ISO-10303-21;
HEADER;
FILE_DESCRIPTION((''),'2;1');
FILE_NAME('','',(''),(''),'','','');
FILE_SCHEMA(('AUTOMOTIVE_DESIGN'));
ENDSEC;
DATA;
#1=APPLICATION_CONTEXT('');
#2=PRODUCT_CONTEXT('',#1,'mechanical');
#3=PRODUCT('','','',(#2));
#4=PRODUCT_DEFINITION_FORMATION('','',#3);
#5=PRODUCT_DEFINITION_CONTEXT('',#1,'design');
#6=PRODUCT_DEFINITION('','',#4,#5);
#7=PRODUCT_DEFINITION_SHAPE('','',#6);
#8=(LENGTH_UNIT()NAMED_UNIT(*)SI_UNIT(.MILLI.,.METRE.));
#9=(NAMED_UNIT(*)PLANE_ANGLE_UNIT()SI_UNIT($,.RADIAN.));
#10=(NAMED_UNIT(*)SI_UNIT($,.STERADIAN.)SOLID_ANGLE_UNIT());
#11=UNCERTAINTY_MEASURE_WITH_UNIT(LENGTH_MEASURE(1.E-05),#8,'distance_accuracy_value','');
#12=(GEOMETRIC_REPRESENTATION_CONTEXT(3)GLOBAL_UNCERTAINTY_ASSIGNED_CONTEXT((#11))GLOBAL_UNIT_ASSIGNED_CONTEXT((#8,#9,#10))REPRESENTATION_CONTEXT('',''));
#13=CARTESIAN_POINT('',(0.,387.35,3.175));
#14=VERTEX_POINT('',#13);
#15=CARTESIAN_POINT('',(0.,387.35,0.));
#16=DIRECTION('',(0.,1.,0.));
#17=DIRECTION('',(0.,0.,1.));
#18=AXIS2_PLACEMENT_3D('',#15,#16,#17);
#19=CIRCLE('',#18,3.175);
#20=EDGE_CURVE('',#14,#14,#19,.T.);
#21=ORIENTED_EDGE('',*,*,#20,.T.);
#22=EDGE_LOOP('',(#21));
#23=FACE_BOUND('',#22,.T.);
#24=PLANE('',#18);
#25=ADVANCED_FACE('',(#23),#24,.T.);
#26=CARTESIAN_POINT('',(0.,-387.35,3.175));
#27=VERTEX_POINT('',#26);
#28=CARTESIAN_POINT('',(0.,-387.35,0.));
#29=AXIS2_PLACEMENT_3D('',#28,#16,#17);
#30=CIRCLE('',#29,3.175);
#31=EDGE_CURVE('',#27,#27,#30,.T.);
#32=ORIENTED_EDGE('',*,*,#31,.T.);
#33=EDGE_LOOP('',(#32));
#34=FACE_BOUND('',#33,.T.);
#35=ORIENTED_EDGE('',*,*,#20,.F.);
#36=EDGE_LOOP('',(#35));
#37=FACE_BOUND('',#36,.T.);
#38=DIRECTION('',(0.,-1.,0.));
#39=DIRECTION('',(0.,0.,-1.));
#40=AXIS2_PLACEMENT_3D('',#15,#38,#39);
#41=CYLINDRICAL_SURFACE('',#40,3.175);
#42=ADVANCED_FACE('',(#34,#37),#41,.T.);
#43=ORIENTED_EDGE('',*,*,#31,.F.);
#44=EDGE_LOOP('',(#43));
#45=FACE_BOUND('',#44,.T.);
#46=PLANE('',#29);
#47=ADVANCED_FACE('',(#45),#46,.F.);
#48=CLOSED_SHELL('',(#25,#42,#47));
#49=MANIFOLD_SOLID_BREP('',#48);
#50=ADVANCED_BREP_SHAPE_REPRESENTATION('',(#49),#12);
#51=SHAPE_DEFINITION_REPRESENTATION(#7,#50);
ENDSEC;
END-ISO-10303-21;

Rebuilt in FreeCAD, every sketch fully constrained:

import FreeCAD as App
import Part
import Sketcher

V = App.Vector
Q = App.Units.Quantity

doc = App.newDocument("Part")
body = doc.addObject("PartDesign::Body", "Body")

sketch1 = body.newObject("Sketcher::SketchObject", "Sketch")
sketch1.AttachmentSupport = (doc.getObject("XZ_Plane"), [""])
sketch1.MapMode = "FlatFace"
sketch1.addGeometry(Part.Circle(V(0, 0, 0), V(0, 0, 1), 3.2), False)
sketch1.addConstraint(Sketcher.Constraint("Coincident", 0, 3, -1, 1))
sketch1.addConstraint(Sketcher.Constraint("Diameter", 0, Q("0.25 in")))
pad1 = body.newObject("PartDesign::Pad", "Pad")
pad1.Profile = sketch1
pad1.Length = Q("30.5 in")
pad1.Midplane = True

doc.recompute()
